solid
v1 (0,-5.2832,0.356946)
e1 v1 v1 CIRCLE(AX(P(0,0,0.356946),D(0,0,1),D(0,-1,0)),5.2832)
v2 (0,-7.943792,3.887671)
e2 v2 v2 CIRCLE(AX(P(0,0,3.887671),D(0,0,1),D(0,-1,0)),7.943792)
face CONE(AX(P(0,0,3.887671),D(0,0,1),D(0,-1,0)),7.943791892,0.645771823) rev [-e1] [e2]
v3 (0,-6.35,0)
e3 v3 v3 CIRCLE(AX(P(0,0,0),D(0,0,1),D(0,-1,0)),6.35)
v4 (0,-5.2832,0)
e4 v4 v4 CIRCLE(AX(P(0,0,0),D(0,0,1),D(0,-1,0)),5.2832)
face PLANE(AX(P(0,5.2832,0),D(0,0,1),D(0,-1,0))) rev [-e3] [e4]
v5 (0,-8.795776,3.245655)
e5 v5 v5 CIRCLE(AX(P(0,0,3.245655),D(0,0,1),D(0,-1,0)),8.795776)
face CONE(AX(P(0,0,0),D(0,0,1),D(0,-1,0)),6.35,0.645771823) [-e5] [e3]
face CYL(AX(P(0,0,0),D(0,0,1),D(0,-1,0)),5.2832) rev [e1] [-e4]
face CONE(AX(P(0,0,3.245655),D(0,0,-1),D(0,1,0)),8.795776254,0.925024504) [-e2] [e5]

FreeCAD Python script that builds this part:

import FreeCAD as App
import Part
import Sketcher
Q = App.Units.Quantity


def add_polygon(sketch, points):
    """Adds a closed chain of lines whose ends are joined by coincident constraints."""
    first, n = sketch.GeometryCount, len(points)
    for a, b in zip(points, points[1:] + points[:1]):
        sketch.addGeometry(Part.LineSegment(App.Vector(*a, 0), App.Vector(*b, 0)), False)
    for i in range(n):
        sketch.addConstraint(Sketcher.Constraint("Coincident", first + i, 2, first + (i + 1) % n, 1))

doc = App.newDocument("Part")
body = doc.addObject("PartDesign::Body", "Body")

sketch1 = body.newObject("Sketcher::SketchObject", "Sketch")
sketch1.AttachmentSupport = (doc.getObject("YZ_Plane"), [""])
sketch1.MapMode = "FlatFace"
add_polygon(sketch1, [(6.35, 0), (8.8, 3.25), (7.94, 3.89), (5.5, 0.64), (5.28, 0.36), (5.28, 0)])
sketch1.addConstraint([
    Sketcher.Constraint("Vertical", 4),
    Sketcher.Constraint("Horizontal", 5),
    Sketcher.Constraint("PointOnObject", 4, 2, -1),
    Sketcher.Constraint("Perpendicular", 0, 1),
    Sketcher.Constraint("Perpendicular", 1, 2),
    Sketcher.Constraint("Parallel", 2, 3),
    Sketcher.Constraint("Equal", 0, 2),
    Sketcher.Constraint("Angle", 0, Q("53 deg")),
    Sketcher.Constraint("Distance", 0, Q("0.16 in")),
    Sketcher.Constraint("DistanceX", 5, 1, 5, 2, Q("0.042 in")),
    Sketcher.Constraint("DistanceX", -1, 1, 5, 2, Q("0.25 in")),
    Sketcher.Constraint("Distance", 1, Q("0.042 in")),
])
revolution = body.newObject("PartDesign::Revolution", "Revolution")
revolution.Profile = sketch1
revolution.ReferenceAxis = (sketch1, ["V_Axis"])
revolution.Angle = 360

doc.recompute()
